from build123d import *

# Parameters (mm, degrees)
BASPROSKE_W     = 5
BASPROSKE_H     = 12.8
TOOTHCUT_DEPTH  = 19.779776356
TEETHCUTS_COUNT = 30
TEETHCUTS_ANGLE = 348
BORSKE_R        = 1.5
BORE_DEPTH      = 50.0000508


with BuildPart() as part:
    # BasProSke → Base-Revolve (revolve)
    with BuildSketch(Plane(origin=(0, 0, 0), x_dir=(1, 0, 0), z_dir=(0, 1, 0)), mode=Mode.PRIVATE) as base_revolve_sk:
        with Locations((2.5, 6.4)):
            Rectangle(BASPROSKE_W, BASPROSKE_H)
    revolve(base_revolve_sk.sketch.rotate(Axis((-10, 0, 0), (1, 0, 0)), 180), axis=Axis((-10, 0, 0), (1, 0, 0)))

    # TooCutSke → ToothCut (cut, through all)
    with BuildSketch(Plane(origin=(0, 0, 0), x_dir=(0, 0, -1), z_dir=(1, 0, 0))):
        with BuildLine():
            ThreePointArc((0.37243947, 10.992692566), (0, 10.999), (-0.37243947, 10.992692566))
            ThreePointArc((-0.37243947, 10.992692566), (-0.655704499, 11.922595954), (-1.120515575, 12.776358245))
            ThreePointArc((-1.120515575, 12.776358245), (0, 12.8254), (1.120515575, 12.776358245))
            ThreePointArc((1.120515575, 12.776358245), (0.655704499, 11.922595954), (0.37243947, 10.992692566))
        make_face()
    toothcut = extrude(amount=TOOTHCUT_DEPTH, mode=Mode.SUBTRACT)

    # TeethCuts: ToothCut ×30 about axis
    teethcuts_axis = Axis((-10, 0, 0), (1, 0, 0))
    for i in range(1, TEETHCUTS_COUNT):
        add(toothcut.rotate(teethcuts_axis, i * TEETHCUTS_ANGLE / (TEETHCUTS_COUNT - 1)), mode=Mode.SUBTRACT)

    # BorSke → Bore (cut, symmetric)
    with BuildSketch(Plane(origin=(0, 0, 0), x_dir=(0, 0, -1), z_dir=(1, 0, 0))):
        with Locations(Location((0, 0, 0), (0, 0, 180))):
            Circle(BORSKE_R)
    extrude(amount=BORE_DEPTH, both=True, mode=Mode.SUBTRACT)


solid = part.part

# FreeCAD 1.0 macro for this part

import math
import FreeCAD as App
import Part
import Sketcher


def add_polygon(sketch, points):
    """Adds a closed chain of lines whose ends are joined by coincident constraints."""
    first, n = sketch.GeometryCount, len(points)
    for a, b in zip(points, points[1:] + points[:1]):
        sketch.addGeometry(Part.LineSegment(App.Vector(*a, 0), App.Vector(*b, 0)), False)
    for i in range(n):
        sketch.addConstraint(Sketcher.Constraint("Coincident", first + i, 2, first + (i + 1) % n, 1))

doc = App.newDocument("Part")
body = doc.addObject("PartDesign::Body", "Body")

sketch1 = body.newObject("Sketcher::SketchObject", "Sketch")
sketch1.AttachmentSupport = (doc.getObject("XZ_Plane"), [""])
sketch1.MapMode = "FlatFace"
add_polygon(sketch1, [(0, -13), (0, 0), (5, 0), (5, -13)])
sketch1.addConstraint([
    Sketcher.Constraint("Vertical", 0),
    Sketcher.Constraint("Horizontal", 1),
    Sketcher.Constraint("Vertical", 2),
    Sketcher.Constraint("Horizontal", 3),
    Sketcher.Constraint("Coincident", 0, 2, -1, 1),
    Sketcher.Constraint("DistanceX", 1, 1, 1, 2, 5.0),
    Sketcher.Constraint("DistanceY", 0, 1, 0, 2, 12.8),
])
revolution = body.newObject("PartDesign::Revolution", "Revolution")
revolution.Profile = sketch1
revolution.ReferenceAxis = (sketch1, ["H_Axis"])
revolution.Angle = 360

sketch2 = body.newObject("Sketcher::SketchObject", "Sketch001")
sketch2.AttachmentSupport = (doc.getObject("YZ_Plane"), [""])
sketch2.MapMode = "FlatFace"
sketch2.addGeometry([
    Part.ArcOfCircle(Part.Circle(App.Vector(0, 0, 0), App.Vector(0, 0, 1), 11), math.radians(-1.94), math.radians(1.94)),
    Part.ArcOfCircle(Part.Circle(App.Vector(10.1, -5.1, 0), App.Vector(0, 0, 1), 4.8), math.radians(56), math.radians(79)),
    Part.ArcOfCircle(Part.Circle(App.Vector(0, 0, 0), App.Vector(0, 0, 1), 12.8), math.radians(-5.01), math.radians(5.01)),
    Part.ArcOfCircle(Part.Circle(App.Vector(10.1, 5.1, 0), App.Vector(0, 0, 1), 4.8), math.radians(-79), math.radians(-56)),
], False)
sketch2.addConstraint([
    Sketcher.Constraint("Coincident", 0, 1, 1, 2),
    Sketcher.Constraint("Coincident", 1, 1, 2, 1),
    Sketcher.Constraint("Coincident", 2, 2, 3, 2),
    Sketcher.Constraint("Coincident", 3, 1, 0, 2),
    Sketcher.Constraint("Coincident", 0, 3, -1, 1),
    Sketcher.Constraint("Coincident", 2, 3, -1, 1),
    Sketcher.Constraint("Equal", 1, 3),
    Sketcher.Constraint("Symmetric", 1, 3, 3, 3, -1),
    Sketcher.Constraint("Radius", 1, 4.8),
    Sketcher.Constraint("Radius", 0, 10.999001),
    Sketcher.Constraint("Radius", 2, 12.8254),
    Sketcher.Constraint("DistanceY", 0, 1, 3, 3, 5.4546),
    Sketcher.Constraint("DistanceY", 1, 3, -1, 1, 5.08216),
])
pocket1 = body.newObject("PartDesign::Pocket", "Pocket")
pocket1.Profile = sketch2
pocket1.Type = "ThroughAll"
pocket1.Reversed = True
doc.recompute()

polarpattern = body.newObject("PartDesign::PolarPattern", "PolarPattern")
polarpattern.Originals = [pocket1]
polarpattern.Axis = (doc.getObject("X_Axis"), [""])
polarpattern.Angle = 360
polarpattern.Occurrences = 30
body.Tip = polarpattern

sketch3 = body.newObject("Sketcher::SketchObject", "Sketch002")
sketch3.AttachmentSupport = (doc.getObject("YZ_Plane"), [""])
sketch3.MapMode = "FlatFace"
sketch3.addGeometry(Part.Circle(App.Vector(0, 0, 0), App.Vector(0, 0, 1), 1.5), False)
sketch3.addConstraint([
    Sketcher.Constraint("Coincident", 0, 3, -1, 1),
    Sketcher.Constraint("Diameter", 0, 3.0),
])
pocket2 = body.newObject("PartDesign::Pocket", "Pocket001")
pocket2.Profile = sketch3
pocket2.Length = 100.000102
pocket2.Midplane = True

doc.recompute()
